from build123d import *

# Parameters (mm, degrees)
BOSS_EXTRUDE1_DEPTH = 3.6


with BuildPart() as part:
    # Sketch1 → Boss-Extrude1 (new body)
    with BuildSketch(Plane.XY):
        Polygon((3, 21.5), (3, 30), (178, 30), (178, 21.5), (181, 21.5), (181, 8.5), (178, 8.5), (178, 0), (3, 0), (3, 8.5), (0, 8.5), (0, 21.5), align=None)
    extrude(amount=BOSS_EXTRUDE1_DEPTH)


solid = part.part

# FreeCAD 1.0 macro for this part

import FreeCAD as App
import Part
import Sketcher
from FreeCAD import Vector
Q = App.Units.Quantity


def add_polygon(sketch, points):
    """Adds a closed chain of lines whose ends are joined by coincident constraints."""
    first, n = sketch.GeometryCount, len(points)
    for a, b in zip(points, points[1:] + points[:1]):
        sketch.addGeometry(Part.LineSegment(App.Vector(*a, 0), App.Vector(*b, 0)), False)
    for i in range(n):
        sketch.addConstraint(Sketcher.Constraint("Coincident", first + i, 2, first + (i + 1) % n, 1))

doc = App.newDocument("Part")
params = doc.addObject("Spreadsheet::Sheet", "Params")
for row, (alias, value) in enumerate([
    ("sketch1_width", "3 mm"),
    ("sketch1_width2", "175 mm"),
    ("sketch1_height", "13 mm"),
    ("sketch1_height2", "8.5 mm"),
    ("pad1_length", "3.6 mm"),
], start=1):
    params.set(f"A{row}", alias)
    params.set(f"B{row}", "=" + value)
    params.setAlias(f"B{row}", alias)

body = doc.addObject("PartDesign::Body", "Body")

# Sketch on XY plane
sketch1 = body.newObject("Sketcher::SketchObject", "Sketch")
sketch1.AttachmentSupport = (doc.getObject("XY_Plane"), [""])
sketch1.MapMode = "FlatFace"
add_polygon(sketch1, [(3, 30), (3, 21.5), (0, 21.5), (0, 8.5), (3, 8.5), (3, 0), (178, 0), (178, 8.5), (181, 8.5), (181, 21.5), (178, 21.5), (178, 30)])  # lines 0-11
sketch1.addConstraint([
    Sketcher.Constraint("Vertical", 0),
    Sketcher.Constraint("Horizontal", 1),
    Sketcher.Constraint("Vertical", 2),
    Sketcher.Constraint("Horizontal", 3),
    Sketcher.Constraint("Vertical", 4),
    Sketcher.Constraint("Horizontal", 5),
    Sketcher.Constraint("Vertical", 6),
    Sketcher.Constraint("Horizontal", 7),
    Sketcher.Constraint("Vertical", 8),
    Sketcher.Constraint("Horizontal", 9),
    Sketcher.Constraint("Vertical", 10),
    Sketcher.Constraint("Horizontal", 11),
    Sketcher.Constraint("PointOnObject", 1, 2, -2),
    Sketcher.Constraint("PointOnObject", 4, 2, -1),
    Sketcher.Constraint("Horizontal", 3, 2, 6, 2),
    Sketcher.Constraint("Horizontal", 1, 2, 8, 2),
    Sketcher.Constraint("Vertical", 0, 2, 3, 2),
    Sketcher.Constraint("Vertical", 6, 2, 9, 2),
    Sketcher.Constraint("Equal", 3, 7),
    Sketcher.Constraint("Equal", 0, 4),
    Sketcher.Constraint("DistanceX", 1, 2, 1, 1, Q("3 mm")),
    Sketcher.Constraint("DistanceX", 5, 1, 5, 2, Q("175 mm")),
    Sketcher.Constraint("DistanceY", 2, 2, 2, 1, Q("13 mm")),
    Sketcher.Constraint("DistanceY", 0, 2, 0, 1, Q("8.5 mm")),
])
sketch1.setExpression("Constraints[32]", "Params.sketch1_width")
sketch1.setExpression("Constraints[33]", "Params.sketch1_width2")
sketch1.setExpression("Constraints[34]", "Params.sketch1_height")
sketch1.setExpression("Constraints[35]", "Params.sketch1_height2")
pad1 = body.newObject("PartDesign::Pad", "Pad")
pad1.Profile = sketch1
pad1.setExpression("Length", "Params.pad1_length")

doc.recompute()
